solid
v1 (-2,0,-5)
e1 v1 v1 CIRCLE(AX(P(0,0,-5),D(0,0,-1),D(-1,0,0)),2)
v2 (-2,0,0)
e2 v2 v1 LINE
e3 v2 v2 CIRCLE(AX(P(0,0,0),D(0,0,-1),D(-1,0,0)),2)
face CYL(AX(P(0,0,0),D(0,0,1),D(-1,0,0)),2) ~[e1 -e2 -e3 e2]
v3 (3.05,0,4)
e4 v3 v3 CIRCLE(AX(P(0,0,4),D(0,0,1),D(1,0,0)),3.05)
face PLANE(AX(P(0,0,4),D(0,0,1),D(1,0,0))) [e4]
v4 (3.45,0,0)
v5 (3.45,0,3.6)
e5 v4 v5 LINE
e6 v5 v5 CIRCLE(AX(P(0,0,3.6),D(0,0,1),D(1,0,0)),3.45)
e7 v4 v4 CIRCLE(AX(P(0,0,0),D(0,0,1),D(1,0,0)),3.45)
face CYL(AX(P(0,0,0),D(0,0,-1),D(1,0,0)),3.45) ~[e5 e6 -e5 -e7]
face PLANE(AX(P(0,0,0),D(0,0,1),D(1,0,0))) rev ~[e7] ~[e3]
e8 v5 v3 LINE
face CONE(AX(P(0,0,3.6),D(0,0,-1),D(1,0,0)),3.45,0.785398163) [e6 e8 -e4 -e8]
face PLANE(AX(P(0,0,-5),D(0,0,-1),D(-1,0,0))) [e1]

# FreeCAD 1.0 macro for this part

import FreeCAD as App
import Part
import Sketcher


def edges_at(feature, points):
    """Names of the edges that pass closest to the given points."""
    edges = feature.Shape.Edges
    near = lambda p: min(range(len(edges)), key=lambda i: edges[i].distToShape(Part.Vertex(*p))[0])
    return sorted({f"Edge{near(p) + 1}" for p in points})

doc = App.newDocument("Part")
params = doc.addObject("Spreadsheet::Sheet", "Params")
for row, (alias, value) in enumerate([
    ("sketch1_diameter", "6.9 mm"),
    ("pad1_length", "4 mm"),
    ("sketch2_diameter", "4 mm"),
    ("pad2_length", "5 mm"),
    ("chamfer_size", "0.4 mm"),
], start=1):
    params.set(f"A{row}", alias)
    params.set(f"B{row}", "=" + value)
    params.setAlias(f"B{row}", alias)

body = doc.addObject("PartDesign::Body", "Body")

# Sketch on XY plane
sketch1 = body.newObject("Sketcher::SketchObject", "Sketch")
sketch1.AttachmentSupport = (doc.getObject("XY_Plane"), [""])
sketch1.MapMode = "FlatFace"
sketch1.addGeometry(Part.Circle(App.Vector(0, 0, 0), App.Vector(0, 0, 1), 3.5), False)
sketch1.addConstraint([
    Sketcher.Constraint("Coincident", 0, 3, -1, 1),
    Sketcher.Constraint("Diameter", 0, 6.9),
])
sketch1.setExpression("Constraints[1]", "Params.sketch1_diameter")
pad1 = body.newObject("PartDesign::Pad", "Pad")
pad1.Profile = sketch1
pad1.setExpression("Length", "Params.pad1_length")

# Sketch on XY plane
sketch2 = body.newObject("Sketcher::SketchObject", "Sketch001")
sketch2.AttachmentSupport = (doc.getObject("XY_Plane"), [""])
sketch2.MapMode = "FlatFace"
sketch2.addGeometry(Part.Circle(App.Vector(0, 0, 0), App.Vector(0, 0, 1), 2), False)
sketch2.addConstraint([
    Sketcher.Constraint("Coincident", 0, 3, -1, 1),
    Sketcher.Constraint("Diameter", 0, 4.0),
])
sketch2.setExpression("Constraints[1]", "Params.sketch2_diameter")
pad2 = body.newObject("PartDesign::Pad", "Pad001")
pad2.Profile = sketch2
pad2.setExpression("Length", "Params.pad2_length")
pad2.Reversed = True
doc.recompute()

chamfer = body.newObject("PartDesign::Chamfer", "Chamfer")
chamfer.Base = (pad2, edges_at(pad2, [(-3.45, 0, 4)]))
chamfer.setExpression("Size", "Params.chamfer_size")

doc.recompute()
